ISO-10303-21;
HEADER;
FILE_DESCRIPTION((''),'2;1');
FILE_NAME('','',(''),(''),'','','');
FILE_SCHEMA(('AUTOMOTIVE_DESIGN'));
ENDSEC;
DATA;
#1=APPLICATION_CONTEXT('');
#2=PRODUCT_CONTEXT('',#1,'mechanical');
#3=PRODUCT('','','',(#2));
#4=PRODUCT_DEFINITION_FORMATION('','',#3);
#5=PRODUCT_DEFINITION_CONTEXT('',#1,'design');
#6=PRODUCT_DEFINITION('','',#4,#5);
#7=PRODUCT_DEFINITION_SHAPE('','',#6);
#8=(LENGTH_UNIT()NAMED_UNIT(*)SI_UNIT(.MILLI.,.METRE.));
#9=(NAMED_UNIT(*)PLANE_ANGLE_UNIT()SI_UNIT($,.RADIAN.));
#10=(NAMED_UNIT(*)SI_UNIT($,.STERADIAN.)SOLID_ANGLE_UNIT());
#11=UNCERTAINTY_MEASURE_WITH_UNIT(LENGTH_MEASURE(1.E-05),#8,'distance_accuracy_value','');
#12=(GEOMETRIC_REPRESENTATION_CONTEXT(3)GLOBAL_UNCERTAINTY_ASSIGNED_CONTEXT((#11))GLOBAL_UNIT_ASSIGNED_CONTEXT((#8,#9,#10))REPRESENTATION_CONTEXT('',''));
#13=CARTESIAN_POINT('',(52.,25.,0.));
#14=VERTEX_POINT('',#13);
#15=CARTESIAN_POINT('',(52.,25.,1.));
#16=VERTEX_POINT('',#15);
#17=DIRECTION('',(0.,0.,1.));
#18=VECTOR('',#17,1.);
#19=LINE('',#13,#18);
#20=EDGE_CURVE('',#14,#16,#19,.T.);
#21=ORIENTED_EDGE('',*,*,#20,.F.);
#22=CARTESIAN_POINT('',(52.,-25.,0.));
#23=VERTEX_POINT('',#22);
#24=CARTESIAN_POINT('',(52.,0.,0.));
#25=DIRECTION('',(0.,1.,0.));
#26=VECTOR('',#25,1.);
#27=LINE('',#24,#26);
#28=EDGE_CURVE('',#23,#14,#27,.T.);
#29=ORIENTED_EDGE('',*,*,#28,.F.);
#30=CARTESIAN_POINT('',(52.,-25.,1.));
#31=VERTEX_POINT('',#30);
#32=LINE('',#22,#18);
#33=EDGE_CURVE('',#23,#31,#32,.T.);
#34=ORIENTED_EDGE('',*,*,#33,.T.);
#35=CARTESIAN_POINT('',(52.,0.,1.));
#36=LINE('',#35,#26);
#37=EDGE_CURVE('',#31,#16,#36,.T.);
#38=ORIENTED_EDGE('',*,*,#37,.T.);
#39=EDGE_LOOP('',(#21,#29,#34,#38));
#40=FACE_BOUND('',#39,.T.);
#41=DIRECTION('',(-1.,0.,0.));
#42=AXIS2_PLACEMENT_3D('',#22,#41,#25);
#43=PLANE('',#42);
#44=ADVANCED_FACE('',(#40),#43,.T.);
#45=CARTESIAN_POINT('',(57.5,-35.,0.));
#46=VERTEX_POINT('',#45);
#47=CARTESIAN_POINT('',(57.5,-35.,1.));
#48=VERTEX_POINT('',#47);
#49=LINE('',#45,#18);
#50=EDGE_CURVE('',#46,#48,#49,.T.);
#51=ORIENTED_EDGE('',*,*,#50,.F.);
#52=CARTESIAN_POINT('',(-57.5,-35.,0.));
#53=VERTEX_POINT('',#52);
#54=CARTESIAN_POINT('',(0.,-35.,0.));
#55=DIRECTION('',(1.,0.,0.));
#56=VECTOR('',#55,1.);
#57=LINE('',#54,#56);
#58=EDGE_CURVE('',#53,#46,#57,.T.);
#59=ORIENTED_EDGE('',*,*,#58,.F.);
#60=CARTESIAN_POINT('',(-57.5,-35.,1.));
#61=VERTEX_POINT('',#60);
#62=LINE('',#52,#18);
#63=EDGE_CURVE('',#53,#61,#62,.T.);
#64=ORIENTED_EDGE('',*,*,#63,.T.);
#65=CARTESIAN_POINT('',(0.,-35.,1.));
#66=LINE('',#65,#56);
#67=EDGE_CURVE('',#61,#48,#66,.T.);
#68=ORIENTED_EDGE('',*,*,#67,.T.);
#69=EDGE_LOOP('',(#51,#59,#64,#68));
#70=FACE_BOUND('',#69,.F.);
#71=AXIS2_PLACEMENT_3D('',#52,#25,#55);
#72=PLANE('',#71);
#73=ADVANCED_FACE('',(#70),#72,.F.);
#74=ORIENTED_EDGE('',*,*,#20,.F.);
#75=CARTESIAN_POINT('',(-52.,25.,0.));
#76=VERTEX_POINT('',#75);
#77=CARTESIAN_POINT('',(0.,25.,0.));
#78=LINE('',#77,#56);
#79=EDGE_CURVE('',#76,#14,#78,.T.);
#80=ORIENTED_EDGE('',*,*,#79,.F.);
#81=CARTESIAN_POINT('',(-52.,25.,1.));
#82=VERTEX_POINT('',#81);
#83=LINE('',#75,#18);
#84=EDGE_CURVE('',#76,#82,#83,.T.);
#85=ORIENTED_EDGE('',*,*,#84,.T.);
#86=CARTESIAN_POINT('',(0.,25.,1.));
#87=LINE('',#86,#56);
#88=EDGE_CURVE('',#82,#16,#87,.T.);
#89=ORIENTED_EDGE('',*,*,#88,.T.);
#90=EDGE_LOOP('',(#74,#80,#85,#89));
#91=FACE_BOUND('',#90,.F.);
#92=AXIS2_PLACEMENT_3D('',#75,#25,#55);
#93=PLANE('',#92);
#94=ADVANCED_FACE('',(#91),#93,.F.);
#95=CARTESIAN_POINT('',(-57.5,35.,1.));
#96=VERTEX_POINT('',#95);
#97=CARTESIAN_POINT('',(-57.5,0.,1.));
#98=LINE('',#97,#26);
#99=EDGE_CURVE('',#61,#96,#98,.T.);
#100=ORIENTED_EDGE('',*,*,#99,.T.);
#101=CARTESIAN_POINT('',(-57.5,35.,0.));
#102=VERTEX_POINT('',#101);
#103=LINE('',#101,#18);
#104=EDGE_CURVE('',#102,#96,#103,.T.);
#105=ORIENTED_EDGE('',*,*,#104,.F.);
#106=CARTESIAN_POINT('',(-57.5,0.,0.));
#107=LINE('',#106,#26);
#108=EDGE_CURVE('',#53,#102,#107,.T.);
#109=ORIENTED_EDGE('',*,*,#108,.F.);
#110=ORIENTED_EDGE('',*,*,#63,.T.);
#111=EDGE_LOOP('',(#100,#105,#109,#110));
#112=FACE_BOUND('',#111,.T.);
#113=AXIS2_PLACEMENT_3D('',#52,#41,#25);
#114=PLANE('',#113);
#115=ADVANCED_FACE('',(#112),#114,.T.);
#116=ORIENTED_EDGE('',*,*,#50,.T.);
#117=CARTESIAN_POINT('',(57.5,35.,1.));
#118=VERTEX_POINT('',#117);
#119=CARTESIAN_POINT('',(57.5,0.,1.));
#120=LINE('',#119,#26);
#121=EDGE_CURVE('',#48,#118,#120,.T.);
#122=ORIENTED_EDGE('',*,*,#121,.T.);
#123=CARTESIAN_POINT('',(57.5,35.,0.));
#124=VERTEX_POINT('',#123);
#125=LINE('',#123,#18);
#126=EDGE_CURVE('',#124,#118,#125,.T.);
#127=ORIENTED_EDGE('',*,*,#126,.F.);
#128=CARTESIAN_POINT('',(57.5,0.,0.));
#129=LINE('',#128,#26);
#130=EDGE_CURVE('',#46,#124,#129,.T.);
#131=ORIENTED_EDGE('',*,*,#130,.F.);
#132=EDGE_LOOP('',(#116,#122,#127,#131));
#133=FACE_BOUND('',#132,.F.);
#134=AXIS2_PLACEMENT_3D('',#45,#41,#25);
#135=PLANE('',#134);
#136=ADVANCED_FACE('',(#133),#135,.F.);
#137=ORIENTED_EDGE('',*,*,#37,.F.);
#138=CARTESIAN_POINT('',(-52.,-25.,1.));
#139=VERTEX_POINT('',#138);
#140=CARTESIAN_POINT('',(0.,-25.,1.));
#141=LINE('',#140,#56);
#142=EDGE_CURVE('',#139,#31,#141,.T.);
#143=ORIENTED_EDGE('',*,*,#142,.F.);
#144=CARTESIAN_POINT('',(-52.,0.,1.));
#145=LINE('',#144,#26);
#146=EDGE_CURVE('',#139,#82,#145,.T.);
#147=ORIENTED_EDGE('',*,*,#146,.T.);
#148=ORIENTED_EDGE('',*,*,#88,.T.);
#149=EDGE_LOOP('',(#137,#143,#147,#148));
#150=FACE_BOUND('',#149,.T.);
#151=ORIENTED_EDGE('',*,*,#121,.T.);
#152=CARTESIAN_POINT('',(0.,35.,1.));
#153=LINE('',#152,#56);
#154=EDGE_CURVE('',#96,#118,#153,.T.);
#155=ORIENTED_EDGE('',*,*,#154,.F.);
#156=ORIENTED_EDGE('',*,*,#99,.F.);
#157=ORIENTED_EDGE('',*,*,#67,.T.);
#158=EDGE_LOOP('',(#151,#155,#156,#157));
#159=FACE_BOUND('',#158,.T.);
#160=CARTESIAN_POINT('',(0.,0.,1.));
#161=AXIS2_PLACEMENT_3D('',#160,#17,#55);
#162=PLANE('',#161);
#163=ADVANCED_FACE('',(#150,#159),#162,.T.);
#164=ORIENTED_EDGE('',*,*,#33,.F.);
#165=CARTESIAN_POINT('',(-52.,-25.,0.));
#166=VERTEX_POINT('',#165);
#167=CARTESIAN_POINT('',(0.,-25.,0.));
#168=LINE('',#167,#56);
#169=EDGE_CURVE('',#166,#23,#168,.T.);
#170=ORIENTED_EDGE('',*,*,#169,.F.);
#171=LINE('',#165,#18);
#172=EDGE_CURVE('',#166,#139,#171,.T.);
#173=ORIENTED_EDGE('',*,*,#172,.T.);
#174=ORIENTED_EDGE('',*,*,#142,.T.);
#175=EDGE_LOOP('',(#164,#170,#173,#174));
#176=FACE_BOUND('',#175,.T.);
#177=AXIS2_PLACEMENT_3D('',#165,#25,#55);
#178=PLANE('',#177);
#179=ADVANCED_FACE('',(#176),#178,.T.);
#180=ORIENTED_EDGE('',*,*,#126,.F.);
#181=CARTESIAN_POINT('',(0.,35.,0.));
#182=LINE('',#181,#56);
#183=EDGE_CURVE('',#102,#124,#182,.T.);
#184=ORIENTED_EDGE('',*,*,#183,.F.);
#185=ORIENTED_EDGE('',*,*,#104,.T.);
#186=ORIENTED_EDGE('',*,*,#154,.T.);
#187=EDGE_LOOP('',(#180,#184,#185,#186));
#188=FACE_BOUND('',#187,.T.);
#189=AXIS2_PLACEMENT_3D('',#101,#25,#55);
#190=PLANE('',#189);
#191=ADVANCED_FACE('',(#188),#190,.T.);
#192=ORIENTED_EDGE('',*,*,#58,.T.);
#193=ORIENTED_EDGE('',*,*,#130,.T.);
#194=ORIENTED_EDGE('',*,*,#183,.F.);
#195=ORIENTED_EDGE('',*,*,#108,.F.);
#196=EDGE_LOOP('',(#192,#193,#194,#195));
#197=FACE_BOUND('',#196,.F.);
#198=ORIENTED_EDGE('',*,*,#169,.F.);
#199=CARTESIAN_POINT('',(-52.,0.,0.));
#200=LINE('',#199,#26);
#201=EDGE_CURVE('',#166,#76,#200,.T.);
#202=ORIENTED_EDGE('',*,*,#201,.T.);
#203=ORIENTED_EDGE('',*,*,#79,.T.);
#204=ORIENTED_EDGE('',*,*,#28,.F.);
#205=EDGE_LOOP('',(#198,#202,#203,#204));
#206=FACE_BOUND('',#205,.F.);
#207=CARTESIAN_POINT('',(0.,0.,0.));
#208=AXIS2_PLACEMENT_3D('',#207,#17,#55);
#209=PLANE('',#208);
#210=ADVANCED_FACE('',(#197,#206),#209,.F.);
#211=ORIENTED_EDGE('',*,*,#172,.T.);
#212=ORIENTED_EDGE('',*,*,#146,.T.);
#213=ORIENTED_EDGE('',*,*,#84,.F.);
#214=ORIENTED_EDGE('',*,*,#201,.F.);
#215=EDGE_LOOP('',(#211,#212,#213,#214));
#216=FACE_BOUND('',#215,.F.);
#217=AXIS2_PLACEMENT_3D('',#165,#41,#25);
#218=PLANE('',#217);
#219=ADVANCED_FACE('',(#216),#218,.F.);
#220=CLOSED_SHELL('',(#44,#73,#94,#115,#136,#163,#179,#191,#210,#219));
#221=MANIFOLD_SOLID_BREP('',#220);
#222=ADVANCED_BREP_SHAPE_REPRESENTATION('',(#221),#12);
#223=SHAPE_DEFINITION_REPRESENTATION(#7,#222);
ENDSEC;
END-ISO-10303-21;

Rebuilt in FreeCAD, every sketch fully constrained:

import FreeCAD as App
import Part
import Sketcher
from FreeCAD import Vector

doc = App.newDocument("Part")
body = doc.addObject("PartDesign::Body", "Body")

sketch1 = doc.addObject("Sketcher::SketchObject", "Sketch")
body.addObject(sketch1)
sketch1.AttachmentSupport = (doc.XY_Plane, [""])
sketch1.MapMode = "FlatFace"
sketch1.addGeometry(Part.LineSegment(Vector(-58, 35, 0), Vector(-58, -35, 0)), False)
sketch1.addGeometry(Part.LineSegment(Vector(-58, -35, 0), Vector(58, -35, 0)), False)
sketch1.addGeometry(Part.LineSegment(Vector(58, -35, 0), Vector(58, 35, 0)), False)
sketch1.addGeometry(Part.LineSegment(Vector(58, 35, 0), Vector(-58, 35, 0)), False)
sketch1.addGeometry(Part.LineSegment(Vector(52, -25, 0), Vector(-52, -25, 0)), False)
sketch1.addGeometry(Part.LineSegment(Vector(-52, -25, 0), Vector(-52, 25, 0)), False)
sketch1.addGeometry(Part.LineSegment(Vector(-52, 25, 0), Vector(52, 25, 0)), False)
sketch1.addGeometry(Part.LineSegment(Vector(52, 25, 0), Vector(52, -25, 0)), False)
sketch1.addConstraint(Sketcher.Constraint("Coincident", 0, 2, 1, 1))
sketch1.addConstraint(Sketcher.Constraint("Coincident", 1, 2, 2, 1))
sketch1.addConstraint(Sketcher.Constraint("Coincident", 2, 2, 3, 1))
sketch1.addConstraint(Sketcher.Constraint("Coincident", 3, 2, 0, 1))
sketch1.addConstraint(Sketcher.Constraint("Coincident", 4, 2, 5, 1))
sketch1.addConstraint(Sketcher.Constraint("Coincident", 5, 2, 6, 1))
sketch1.addConstraint(Sketcher.Constraint("Coincident", 6, 2, 7, 1))
sketch1.addConstraint(Sketcher.Constraint("Coincident", 7, 2, 4, 1))
sketch1.addConstraint(Sketcher.Constraint("Vertical", 0))
sketch1.addConstraint(Sketcher.Constraint("Horizontal", 1))
sketch1.addConstraint(Sketcher.Constraint("Vertical", 2))
sketch1.addConstraint(Sketcher.Constraint("Horizontal", 3))
sketch1.addConstraint(Sketcher.Constraint("Horizontal", 4))
sketch1.addConstraint(Sketcher.Constraint("Vertical", 5))
sketch1.addConstraint(Sketcher.Constraint("Horizontal", 6))
sketch1.addConstraint(Sketcher.Constraint("Vertical", 7))
sketch1.addConstraint(Sketcher.Constraint("Symmetric", 0, 2, 2, 2, -1, 1))
sketch1.addConstraint(Sketcher.Constraint("Symmetric", 4, 2, 6, 2, -1, 1))
sketch1.addConstraint(Sketcher.Constraint("DistanceX", 1, 1, 1, 2, 115.0))
sketch1.addConstraint(Sketcher.Constraint("DistanceX", 4, 2, 4, 1, 104.0))
sketch1.addConstraint(Sketcher.Constraint("DistanceY", 0, 2, 0, 1, 70.0))
sketch1.addConstraint(Sketcher.Constraint("DistanceY", 5, 1, 5, 2, 50.0))
pad1 = doc.addObject("PartDesign::Pad", "Pad")
body.addObject(pad1)
pad1.Profile = sketch1
pad1.Length = 1

doc.recompute()
